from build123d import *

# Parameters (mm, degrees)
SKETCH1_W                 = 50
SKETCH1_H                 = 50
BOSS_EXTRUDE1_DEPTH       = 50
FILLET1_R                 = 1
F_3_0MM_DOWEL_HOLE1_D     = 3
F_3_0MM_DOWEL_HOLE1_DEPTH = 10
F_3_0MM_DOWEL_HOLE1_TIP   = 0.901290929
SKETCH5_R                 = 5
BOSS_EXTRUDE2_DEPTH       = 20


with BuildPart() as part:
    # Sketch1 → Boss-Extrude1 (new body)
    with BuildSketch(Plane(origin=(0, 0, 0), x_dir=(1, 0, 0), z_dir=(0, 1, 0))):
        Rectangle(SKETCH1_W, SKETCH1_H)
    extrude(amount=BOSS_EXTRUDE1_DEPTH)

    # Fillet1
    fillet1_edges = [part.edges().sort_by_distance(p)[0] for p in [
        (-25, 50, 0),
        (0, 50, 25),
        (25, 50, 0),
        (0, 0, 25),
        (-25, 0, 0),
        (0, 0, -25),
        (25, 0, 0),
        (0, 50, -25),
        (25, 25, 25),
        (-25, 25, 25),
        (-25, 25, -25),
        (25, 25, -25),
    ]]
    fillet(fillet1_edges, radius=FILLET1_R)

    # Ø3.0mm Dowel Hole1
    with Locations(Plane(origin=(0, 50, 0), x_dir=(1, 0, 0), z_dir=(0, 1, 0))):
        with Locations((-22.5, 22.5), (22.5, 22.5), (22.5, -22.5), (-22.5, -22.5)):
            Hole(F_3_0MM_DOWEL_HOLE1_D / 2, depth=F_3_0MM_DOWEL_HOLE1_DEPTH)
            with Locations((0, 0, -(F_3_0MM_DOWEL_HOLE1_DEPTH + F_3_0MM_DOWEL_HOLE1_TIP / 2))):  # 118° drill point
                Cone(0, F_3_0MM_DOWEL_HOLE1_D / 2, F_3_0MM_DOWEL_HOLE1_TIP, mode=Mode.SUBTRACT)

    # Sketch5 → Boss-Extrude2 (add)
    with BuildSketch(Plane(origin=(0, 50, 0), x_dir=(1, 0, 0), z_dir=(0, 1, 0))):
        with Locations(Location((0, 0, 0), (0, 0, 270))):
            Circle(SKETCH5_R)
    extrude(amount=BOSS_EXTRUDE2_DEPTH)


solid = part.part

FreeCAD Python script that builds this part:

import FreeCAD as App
import Part
import Sketcher


def add_polygon(sketch, points):
    """Adds a closed chain of lines whose ends are joined by coincident constraints."""
    first, n = sketch.GeometryCount, len(points)
    for a, b in zip(points, points[1:] + points[:1]):
        sketch.addGeometry(Part.LineSegment(App.Vector(*a, 0), App.Vector(*b, 0)), False)
    for i in range(n):
        sketch.addConstraint(Sketcher.Constraint("Coincident", first + i, 2, first + (i + 1) % n, 1))

doc = App.newDocument("Part")
body = doc.addObject("PartDesign::Body", "Body")

sketch1 = body.newObject("Sketcher::SketchObject", "Sketch")
sketch1.AttachmentSupport = (doc.getObject("XZ_Plane"), [""])
sketch1.MapMode = "FlatFace"
add_polygon(sketch1, [(-25, -25), (-25, 25), (25, 25), (25, -25)])
sketch1.addConstraint([
    Sketcher.Constraint("Vertical", 0),
    Sketcher.Constraint("Horizontal", 1),
    Sketcher.Constraint("Vertical", 2),
    Sketcher.Constraint("Horizontal", 3),
    Sketcher.Constraint("Symmetric", 0, 2, 2, 2, -1, 1),
    Sketcher.Constraint("Equal", 3, 0),
    Sketcher.Constraint("DistanceX", 1, 1, 1, 2, 50.0),
])
pad1 = body.newObject("PartDesign::Pad", "Pad")
pad1.Profile = sketch1
pad1.Length = 50
pad1.Reversed = True
doc.recompute()

fillet = body.newObject("PartDesign::Fillet", "Fillet")
fillet.Base = (pad1, ["Edge1"])
fillet.UseAllEdges = True
fillet.Radius = 1

sketch2 = body.newObject("Sketcher::SketchObject", "Sketch001")
sketch2.AttachmentSupport = (doc.getObject("XZ_Plane"), [""])
sketch2.MapMode = "FlatFace"
sketch2.AttachmentOffset = App.Placement(App.Vector(0, 0, -50), App.Rotation())
sketch2.addGeometry([
    Part.Circle(App.Vector(-22.5, -22.5, 0), App.Vector(0, 0, 1), 1.5),
    Part.Circle(App.Vector(22.5, -22.5, 0), App.Vector(0, 0, 1), 1.5),
    Part.Circle(App.Vector(22.5, 22.5, 0), App.Vector(0, 0, 1), 1.5),
    Part.Circle(App.Vector(-22.5, 22.5, 0), App.Vector(0, 0, 1), 1.5),
], False)
sketch2.addConstraint([
    Sketcher.Constraint("Equal", 0, 1),
    Sketcher.Constraint("Equal", 1, 2),
    Sketcher.Constraint("Equal", 2, 3),
    Sketcher.Constraint("Symmetric", 0, 3, 2, 3, -1, 1),
    Sketcher.Constraint("Symmetric", 1, 3, 3, 3, -1, 1),
    Sketcher.Constraint("Symmetric", 0, 3, 1, 3, -2),
    Sketcher.Constraint("Diameter", 0, 3.0),
    Sketcher.Constraint("DistanceX", 0, 3, 1, 3, 45.0),
    Sketcher.Constraint("DistanceY", 1, 3, 2, 3, 45.0),
])
doc.recompute()
hole = body.newObject("PartDesign::Hole", "Hole")
hole.Profile = sketch2
hole.ThreadType = "None"
hole.Diameter = 3
hole.DepthType = "Dimension"
hole.Depth = 10
hole.DrillPoint = "Angled"
hole.DrillPointAngle = 118
hole.Reversed = True

sketch3 = body.newObject("Sketcher::SketchObject", "Sketch002")
sketch3.AttachmentSupport = (doc.getObject("XZ_Plane"), [""])
sketch3.MapMode = "FlatFace"
sketch3.AttachmentOffset = App.Placement(App.Vector(0, 0, -50), App.Rotation())
sketch3.addGeometry(Part.Circle(App.Vector(0, 0, 0), App.Vector(0, 0, 1), 5), False)
sketch3.addConstraint([
    Sketcher.Constraint("Coincident", 0, 3, -1, 1),
    Sketcher.Constraint("Diameter", 0, 10.0),
])
pad2 = body.newObject("PartDesign::Pad", "Pad001")
pad2.Profile = sketch3
pad2.Length = 20
pad2.Reversed = True

doc.recompute()
